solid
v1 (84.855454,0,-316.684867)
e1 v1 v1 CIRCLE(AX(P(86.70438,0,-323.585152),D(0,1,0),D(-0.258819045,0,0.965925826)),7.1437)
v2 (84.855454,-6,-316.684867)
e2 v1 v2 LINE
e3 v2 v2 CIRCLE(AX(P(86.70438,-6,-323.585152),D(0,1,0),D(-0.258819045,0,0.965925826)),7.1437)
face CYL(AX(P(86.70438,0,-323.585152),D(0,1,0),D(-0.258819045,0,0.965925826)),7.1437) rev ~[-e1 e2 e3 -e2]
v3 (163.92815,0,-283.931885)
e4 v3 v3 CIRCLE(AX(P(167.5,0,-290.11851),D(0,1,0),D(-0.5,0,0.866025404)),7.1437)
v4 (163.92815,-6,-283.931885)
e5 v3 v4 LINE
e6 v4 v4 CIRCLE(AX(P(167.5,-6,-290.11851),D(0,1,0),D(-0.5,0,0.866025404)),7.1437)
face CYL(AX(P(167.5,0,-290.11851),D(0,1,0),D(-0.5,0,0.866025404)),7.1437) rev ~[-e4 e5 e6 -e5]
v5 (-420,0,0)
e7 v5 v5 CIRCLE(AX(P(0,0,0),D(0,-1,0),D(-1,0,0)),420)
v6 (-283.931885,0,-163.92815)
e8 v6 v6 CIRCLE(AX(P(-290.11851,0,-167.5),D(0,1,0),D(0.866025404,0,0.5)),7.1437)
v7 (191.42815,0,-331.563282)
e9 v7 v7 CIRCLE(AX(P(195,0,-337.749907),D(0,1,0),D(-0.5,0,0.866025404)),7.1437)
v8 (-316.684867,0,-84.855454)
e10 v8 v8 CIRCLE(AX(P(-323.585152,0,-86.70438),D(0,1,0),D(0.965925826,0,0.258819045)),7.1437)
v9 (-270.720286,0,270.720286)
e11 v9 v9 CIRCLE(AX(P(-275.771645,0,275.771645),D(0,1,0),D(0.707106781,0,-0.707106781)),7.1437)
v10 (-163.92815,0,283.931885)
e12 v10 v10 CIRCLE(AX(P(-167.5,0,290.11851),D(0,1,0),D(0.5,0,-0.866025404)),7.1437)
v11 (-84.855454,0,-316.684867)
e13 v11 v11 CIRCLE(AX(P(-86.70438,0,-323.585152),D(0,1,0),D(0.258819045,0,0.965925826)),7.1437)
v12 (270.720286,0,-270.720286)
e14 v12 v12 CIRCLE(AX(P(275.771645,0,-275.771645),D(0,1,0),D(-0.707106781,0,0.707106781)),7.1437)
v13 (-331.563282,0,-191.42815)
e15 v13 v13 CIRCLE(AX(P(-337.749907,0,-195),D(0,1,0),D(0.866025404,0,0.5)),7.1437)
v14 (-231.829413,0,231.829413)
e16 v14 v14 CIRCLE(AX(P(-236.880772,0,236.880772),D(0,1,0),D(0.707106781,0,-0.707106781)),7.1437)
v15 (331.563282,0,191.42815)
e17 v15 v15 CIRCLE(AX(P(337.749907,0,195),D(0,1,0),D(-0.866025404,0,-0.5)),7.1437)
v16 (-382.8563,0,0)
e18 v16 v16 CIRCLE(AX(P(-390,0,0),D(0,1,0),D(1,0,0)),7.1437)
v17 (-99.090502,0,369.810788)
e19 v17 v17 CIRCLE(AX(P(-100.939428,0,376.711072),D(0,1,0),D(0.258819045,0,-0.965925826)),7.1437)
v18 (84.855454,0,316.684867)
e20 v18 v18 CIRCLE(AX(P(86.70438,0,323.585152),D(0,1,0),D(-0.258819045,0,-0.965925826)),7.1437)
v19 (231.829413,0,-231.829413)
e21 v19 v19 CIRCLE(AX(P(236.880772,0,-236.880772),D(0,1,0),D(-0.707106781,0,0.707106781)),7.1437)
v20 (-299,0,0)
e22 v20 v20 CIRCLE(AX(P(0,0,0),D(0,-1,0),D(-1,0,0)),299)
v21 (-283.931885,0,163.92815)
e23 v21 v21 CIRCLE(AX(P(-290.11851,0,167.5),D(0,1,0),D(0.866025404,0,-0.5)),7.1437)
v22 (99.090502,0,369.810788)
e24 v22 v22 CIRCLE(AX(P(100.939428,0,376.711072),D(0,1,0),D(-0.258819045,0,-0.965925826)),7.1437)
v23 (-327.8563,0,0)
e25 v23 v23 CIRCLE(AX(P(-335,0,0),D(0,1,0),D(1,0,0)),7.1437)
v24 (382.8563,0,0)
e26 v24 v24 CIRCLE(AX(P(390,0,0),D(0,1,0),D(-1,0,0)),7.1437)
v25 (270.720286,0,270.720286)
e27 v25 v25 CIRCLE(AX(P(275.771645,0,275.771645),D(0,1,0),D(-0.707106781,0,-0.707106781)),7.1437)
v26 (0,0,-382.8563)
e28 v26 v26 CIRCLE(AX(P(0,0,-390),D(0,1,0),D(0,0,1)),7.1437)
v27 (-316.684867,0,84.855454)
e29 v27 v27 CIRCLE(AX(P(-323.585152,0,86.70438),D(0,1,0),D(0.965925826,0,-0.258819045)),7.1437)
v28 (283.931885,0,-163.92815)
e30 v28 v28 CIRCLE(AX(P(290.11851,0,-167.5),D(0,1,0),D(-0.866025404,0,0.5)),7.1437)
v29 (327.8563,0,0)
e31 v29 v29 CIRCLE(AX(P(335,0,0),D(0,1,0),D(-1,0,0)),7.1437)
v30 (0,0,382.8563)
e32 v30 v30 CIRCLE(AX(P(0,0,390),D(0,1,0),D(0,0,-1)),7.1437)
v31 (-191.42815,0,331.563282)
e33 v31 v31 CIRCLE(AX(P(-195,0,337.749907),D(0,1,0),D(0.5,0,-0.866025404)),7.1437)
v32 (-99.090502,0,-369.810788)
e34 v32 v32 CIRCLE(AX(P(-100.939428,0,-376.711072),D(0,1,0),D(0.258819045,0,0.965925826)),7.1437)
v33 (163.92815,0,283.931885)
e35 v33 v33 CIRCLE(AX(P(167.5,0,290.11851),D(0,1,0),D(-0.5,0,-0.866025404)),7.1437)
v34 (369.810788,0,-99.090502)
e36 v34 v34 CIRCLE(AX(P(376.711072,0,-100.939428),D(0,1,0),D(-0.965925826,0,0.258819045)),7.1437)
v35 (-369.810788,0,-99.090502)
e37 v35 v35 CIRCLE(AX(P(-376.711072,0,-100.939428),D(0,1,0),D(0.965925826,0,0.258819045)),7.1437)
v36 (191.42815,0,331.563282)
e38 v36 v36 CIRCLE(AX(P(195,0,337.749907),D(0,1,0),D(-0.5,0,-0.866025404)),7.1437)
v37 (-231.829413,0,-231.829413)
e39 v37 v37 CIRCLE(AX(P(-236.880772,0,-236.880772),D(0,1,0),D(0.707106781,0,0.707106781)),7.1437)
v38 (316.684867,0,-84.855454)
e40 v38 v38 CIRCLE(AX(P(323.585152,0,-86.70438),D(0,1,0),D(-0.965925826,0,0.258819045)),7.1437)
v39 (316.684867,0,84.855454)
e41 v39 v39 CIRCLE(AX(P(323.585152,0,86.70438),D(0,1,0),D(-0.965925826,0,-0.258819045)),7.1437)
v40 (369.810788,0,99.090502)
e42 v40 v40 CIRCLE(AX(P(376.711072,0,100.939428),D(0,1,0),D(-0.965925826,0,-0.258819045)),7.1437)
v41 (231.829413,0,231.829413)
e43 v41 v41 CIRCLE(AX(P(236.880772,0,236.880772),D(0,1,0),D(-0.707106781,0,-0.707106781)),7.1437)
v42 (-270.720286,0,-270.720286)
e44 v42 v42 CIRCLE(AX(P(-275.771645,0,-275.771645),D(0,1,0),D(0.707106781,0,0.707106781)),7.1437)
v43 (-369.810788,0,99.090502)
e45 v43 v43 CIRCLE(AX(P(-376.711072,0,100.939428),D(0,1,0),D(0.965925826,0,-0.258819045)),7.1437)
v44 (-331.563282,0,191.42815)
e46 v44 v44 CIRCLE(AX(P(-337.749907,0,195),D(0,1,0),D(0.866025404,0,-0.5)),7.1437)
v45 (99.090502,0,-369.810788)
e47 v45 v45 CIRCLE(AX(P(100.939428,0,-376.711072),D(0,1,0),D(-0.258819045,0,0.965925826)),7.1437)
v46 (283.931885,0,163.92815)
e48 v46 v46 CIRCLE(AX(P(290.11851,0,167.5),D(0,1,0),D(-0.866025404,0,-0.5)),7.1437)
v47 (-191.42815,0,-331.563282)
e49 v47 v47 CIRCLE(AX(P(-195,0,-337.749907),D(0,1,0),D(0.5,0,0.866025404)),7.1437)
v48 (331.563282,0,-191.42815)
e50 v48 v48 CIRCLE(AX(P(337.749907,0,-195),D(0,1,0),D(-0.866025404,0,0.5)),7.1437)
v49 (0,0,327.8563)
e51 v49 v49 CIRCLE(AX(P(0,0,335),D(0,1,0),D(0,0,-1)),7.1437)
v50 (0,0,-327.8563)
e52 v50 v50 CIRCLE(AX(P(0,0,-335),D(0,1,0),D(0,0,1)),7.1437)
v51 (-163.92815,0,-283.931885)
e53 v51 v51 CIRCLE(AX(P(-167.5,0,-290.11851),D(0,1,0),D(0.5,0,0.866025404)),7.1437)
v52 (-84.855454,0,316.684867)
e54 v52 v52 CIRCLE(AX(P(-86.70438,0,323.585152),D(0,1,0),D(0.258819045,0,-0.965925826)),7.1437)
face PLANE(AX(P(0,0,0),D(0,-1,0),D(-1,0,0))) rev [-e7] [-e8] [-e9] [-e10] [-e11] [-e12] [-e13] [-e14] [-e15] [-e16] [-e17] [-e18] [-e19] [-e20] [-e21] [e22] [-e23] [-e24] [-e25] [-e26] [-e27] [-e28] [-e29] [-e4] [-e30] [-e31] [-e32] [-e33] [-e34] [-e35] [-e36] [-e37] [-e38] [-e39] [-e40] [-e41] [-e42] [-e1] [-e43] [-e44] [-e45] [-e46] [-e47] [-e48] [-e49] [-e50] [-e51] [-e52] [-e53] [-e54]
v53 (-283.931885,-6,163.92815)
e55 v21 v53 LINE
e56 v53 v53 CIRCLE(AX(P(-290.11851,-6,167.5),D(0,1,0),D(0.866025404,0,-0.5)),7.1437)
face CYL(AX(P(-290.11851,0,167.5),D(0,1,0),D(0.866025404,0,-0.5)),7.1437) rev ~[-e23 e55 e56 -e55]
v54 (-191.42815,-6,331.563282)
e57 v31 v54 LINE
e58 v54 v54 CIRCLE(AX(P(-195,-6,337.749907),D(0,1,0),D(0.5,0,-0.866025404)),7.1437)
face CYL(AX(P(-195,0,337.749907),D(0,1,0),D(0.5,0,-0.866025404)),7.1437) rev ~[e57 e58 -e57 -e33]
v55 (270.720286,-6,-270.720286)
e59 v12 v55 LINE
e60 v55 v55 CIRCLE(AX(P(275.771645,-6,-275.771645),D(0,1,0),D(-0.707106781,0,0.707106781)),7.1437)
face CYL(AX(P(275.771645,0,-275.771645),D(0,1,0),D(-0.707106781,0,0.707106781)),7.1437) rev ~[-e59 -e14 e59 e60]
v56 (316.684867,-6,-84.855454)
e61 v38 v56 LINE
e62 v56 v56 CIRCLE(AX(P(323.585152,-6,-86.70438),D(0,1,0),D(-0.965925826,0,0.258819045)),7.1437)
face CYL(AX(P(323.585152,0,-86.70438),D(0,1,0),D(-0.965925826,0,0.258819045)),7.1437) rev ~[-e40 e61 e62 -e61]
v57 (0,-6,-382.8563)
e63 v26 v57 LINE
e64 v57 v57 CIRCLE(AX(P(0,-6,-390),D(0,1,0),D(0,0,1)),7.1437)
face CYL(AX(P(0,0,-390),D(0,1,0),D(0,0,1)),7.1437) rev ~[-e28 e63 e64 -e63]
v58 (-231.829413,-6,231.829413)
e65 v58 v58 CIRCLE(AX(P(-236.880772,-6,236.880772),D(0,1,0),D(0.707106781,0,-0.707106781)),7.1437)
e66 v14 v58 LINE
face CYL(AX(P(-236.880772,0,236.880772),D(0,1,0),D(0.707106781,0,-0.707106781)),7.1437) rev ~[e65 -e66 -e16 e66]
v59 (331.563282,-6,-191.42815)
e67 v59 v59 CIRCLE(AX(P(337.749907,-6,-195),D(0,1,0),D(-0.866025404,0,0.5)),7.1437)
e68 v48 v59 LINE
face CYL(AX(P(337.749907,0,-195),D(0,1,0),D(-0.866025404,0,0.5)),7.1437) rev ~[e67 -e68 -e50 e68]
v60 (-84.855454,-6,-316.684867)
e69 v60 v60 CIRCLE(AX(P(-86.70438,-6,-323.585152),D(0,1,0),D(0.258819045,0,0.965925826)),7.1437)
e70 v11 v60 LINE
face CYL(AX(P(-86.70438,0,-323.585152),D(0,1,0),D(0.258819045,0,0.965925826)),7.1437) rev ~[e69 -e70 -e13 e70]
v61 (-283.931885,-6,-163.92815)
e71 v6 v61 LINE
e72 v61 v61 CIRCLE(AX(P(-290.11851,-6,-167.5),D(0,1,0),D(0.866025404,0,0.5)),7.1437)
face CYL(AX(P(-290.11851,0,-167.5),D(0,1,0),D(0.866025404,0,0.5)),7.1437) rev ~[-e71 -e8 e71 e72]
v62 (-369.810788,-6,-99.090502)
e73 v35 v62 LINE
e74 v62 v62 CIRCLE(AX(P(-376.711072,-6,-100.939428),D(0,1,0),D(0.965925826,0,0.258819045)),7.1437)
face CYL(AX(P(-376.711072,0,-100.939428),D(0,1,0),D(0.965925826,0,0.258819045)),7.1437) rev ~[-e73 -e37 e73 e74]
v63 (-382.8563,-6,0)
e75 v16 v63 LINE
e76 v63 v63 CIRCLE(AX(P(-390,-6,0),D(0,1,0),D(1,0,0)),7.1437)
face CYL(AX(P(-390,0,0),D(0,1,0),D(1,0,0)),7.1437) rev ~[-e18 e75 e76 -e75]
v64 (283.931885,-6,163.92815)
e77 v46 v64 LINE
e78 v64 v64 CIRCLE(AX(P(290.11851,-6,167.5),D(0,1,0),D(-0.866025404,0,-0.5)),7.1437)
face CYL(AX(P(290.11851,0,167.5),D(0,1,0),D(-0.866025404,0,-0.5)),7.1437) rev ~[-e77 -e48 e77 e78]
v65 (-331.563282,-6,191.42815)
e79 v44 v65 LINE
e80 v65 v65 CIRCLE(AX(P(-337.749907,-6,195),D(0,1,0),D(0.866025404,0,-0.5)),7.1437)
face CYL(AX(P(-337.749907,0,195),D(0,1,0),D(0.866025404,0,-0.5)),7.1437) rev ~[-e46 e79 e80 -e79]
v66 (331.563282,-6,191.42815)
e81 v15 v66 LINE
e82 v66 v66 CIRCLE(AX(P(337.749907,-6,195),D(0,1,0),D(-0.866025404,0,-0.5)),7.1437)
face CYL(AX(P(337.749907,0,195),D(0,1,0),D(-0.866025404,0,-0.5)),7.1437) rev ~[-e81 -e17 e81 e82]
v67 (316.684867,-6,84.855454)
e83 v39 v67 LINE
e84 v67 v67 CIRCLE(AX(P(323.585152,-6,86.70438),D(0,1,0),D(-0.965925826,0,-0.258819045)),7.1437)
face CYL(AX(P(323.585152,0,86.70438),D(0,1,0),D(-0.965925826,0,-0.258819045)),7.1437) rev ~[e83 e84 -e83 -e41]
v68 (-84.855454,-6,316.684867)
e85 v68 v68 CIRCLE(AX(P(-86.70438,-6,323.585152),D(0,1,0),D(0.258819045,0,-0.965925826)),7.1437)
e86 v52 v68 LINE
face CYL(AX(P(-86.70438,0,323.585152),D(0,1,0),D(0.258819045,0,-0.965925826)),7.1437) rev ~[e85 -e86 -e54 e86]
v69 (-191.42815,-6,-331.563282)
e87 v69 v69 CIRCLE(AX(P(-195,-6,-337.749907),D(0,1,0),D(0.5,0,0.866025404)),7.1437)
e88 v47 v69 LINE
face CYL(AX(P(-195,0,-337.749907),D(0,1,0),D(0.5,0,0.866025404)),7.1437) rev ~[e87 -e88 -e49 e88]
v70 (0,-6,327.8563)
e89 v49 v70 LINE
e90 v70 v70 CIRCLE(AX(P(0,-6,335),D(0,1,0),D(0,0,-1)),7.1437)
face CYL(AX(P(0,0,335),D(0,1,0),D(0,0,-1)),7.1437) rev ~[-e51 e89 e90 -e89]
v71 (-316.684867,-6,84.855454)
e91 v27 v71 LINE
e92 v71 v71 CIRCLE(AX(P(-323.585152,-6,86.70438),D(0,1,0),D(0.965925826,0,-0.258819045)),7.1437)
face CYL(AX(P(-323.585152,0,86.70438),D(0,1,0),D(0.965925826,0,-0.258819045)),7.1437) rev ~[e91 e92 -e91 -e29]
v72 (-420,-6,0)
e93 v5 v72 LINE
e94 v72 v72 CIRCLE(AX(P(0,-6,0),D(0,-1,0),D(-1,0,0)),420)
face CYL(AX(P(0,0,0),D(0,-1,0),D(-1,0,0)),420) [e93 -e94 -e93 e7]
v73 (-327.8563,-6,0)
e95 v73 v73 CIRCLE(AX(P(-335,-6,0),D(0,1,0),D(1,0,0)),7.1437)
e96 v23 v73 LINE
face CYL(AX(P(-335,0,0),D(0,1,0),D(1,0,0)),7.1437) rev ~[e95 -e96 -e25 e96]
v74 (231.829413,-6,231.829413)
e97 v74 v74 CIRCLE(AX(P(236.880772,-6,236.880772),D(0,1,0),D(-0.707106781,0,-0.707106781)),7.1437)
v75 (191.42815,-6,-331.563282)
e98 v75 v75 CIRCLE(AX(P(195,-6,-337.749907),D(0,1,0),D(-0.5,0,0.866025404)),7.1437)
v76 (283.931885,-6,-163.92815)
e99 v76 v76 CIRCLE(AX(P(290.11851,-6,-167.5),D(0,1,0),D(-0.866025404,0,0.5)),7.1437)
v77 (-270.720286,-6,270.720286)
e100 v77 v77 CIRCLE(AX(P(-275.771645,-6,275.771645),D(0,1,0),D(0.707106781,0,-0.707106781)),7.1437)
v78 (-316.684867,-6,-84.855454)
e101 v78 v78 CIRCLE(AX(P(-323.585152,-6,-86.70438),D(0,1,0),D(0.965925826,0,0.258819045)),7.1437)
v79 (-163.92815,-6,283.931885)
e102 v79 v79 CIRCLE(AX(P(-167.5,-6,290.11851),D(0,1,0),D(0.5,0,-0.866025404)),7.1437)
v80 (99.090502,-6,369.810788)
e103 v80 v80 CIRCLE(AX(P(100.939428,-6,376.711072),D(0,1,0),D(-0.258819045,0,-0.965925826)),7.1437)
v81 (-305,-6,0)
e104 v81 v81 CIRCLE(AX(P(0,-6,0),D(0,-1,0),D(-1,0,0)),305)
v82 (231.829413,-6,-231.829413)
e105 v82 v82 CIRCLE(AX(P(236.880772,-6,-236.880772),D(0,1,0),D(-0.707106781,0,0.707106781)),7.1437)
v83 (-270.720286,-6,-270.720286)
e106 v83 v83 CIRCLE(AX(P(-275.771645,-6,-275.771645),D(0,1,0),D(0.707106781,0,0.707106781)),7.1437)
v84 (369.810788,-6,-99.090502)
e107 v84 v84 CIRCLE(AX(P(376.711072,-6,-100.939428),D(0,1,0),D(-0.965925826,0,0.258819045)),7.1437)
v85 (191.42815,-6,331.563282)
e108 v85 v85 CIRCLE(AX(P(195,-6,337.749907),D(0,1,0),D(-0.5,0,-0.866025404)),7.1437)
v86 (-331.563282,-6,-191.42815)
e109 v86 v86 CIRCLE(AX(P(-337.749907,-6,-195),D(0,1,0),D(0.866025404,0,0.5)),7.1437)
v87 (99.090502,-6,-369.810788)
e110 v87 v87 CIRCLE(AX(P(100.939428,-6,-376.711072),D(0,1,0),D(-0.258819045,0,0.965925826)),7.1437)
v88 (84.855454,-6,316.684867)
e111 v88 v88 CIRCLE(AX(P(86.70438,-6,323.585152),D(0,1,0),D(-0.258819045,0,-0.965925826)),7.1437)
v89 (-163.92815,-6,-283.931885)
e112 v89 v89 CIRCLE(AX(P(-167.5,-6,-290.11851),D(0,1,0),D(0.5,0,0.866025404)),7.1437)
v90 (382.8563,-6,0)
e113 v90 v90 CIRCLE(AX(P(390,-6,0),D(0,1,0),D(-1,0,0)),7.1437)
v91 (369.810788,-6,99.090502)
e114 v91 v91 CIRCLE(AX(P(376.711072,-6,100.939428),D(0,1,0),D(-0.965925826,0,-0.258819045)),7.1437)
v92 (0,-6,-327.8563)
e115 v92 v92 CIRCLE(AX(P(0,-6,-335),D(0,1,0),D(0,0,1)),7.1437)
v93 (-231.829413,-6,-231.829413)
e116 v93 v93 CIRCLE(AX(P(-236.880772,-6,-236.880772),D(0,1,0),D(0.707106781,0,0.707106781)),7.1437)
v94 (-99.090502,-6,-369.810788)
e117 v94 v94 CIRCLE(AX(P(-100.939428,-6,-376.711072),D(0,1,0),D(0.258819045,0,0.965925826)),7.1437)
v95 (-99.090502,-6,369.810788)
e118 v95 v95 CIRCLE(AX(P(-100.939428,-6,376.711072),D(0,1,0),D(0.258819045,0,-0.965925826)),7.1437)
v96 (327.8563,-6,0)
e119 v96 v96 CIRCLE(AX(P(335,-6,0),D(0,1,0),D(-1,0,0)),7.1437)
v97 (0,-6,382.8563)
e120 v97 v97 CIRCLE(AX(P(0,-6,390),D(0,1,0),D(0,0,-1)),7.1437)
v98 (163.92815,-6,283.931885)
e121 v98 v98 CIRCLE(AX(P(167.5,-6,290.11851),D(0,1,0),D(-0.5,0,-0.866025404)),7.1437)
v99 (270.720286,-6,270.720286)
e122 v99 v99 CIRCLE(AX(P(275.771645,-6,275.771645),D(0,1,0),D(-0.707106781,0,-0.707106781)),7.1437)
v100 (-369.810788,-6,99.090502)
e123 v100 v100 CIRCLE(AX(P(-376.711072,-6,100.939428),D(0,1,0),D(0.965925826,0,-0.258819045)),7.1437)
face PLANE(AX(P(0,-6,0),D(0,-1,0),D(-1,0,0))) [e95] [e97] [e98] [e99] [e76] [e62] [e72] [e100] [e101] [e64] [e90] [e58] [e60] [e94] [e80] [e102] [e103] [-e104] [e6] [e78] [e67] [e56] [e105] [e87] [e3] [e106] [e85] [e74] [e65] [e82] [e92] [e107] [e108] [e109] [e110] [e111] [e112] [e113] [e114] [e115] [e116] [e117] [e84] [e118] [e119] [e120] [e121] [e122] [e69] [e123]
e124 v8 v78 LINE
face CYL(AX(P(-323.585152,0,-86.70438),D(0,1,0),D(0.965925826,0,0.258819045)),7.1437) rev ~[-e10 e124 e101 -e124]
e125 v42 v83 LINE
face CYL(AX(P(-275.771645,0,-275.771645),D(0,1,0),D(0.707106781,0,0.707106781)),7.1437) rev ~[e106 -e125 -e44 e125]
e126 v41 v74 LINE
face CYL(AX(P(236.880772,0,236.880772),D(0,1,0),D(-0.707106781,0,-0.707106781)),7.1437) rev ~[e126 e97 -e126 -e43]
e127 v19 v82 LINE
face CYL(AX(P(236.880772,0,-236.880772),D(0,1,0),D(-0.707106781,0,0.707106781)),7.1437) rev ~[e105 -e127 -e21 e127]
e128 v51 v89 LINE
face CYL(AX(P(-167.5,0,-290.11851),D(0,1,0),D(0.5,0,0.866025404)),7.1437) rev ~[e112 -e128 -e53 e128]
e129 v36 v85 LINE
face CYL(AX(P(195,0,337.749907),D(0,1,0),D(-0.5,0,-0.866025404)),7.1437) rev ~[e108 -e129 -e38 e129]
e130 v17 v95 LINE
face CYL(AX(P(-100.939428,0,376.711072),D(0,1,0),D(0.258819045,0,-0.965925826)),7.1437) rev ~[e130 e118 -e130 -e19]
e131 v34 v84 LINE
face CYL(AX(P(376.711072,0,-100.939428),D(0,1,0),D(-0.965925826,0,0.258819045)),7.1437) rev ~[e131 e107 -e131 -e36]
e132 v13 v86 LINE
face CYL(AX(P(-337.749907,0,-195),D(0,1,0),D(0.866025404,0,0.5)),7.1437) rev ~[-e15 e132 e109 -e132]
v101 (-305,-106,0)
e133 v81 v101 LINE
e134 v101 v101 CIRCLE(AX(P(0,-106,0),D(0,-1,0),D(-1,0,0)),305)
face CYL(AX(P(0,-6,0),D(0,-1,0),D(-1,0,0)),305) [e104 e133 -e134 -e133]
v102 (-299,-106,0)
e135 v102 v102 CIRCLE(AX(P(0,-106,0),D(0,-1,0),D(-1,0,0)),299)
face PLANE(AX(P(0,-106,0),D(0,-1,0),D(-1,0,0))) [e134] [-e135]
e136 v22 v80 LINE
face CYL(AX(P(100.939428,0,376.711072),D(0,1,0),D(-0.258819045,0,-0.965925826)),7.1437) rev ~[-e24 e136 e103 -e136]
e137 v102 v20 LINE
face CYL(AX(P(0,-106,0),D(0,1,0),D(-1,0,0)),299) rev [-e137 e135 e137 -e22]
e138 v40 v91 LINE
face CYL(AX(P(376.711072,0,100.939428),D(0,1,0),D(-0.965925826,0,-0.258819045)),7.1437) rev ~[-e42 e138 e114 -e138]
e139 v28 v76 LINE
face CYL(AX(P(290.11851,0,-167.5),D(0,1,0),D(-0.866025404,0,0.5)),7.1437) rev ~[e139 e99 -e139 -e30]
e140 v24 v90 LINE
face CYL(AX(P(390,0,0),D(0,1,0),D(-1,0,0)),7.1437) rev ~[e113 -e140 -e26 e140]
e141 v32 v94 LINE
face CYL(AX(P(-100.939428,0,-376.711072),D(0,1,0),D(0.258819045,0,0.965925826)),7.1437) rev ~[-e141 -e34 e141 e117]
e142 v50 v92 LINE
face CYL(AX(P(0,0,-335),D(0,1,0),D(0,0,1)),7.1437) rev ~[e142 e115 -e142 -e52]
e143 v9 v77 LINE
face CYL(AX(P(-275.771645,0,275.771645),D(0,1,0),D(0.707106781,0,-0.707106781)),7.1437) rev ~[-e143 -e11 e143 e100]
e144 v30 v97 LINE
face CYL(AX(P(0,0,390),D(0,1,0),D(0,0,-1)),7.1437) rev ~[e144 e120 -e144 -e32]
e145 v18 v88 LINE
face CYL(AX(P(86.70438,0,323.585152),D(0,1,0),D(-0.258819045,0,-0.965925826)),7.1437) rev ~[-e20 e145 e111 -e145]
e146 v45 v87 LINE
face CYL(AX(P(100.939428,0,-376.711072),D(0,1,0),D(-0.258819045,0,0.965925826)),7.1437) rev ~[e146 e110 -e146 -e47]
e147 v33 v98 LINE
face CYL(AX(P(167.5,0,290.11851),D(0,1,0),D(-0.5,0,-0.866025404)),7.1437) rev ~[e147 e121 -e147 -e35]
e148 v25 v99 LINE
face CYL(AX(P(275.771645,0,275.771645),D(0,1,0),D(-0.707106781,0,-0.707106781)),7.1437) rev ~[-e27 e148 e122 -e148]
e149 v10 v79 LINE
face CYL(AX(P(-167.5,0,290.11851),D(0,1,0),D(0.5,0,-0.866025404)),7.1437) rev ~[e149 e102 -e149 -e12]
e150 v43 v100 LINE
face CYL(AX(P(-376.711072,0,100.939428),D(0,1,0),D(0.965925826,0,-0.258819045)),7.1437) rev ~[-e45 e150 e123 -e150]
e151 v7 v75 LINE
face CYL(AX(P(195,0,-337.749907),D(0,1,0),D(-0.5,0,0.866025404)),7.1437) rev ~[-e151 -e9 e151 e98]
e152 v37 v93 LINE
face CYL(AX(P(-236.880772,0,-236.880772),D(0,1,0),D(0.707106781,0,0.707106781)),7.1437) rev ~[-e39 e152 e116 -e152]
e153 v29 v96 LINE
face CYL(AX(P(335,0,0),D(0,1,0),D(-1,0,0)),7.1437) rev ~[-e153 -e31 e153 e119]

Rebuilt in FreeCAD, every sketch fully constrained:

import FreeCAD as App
import Part
import Sketcher
from FreeCAD import Vector

doc = App.newDocument("Part")
body = doc.addObject("PartDesign::Body", "Body")

# Sketch on XY plane
sketch1 = body.newObject("Sketcher::SketchObject", "Sketch")
sketch1.AttachmentSupport = (doc.getObject("XY_Plane"), [""])
sketch1.MapMode = "FlatFace"
sketch1.addGeometry(Part.LineSegment(Vector(-305, -106, 0), Vector(-299, -106, 0)), False)
sketch1.addGeometry(Part.LineSegment(Vector(-299, -106, 0), Vector(-299, 0, 0)), False)
sketch1.addGeometry(Part.LineSegment(Vector(-299, 0, 0), Vector(-420, 0, 0)), False)
sketch1.addGeometry(Part.LineSegment(Vector(-420, 0, 0), Vector(-420, -6, 0)), False)
sketch1.addGeometry(Part.LineSegment(Vector(-420, -6, 0), Vector(-305, -6, 0)), False)
sketch1.addGeometry(Part.LineSegment(Vector(-305, -6, 0), Vector(-305, -106, 0)), False)
sketch1.addConstraint(Sketcher.Constraint("Coincident", 0, 2, 1, 1))
sketch1.addConstraint(Sketcher.Constraint("Coincident", 1, 2, 2, 1))
sketch1.addConstraint(Sketcher.Constraint("Coincident", 2, 2, 3, 1))
sketch1.addConstraint(Sketcher.Constraint("Coincident", 3, 2, 4, 1))
sketch1.addConstraint(Sketcher.Constraint("Coincident", 4, 2, 5, 1))
sketch1.addConstraint(Sketcher.Constraint("Coincident", 5, 2, 0, 1))
sketch1.addConstraint(Sketcher.Constraint("Horizontal", 0))
sketch1.addConstraint(Sketcher.Constraint("Vertical", 1))
sketch1.addConstraint(Sketcher.Constraint("Horizontal", 2))
sketch1.addConstraint(Sketcher.Constraint("Vertical", 3))
sketch1.addConstraint(Sketcher.Constraint("Horizontal", 4))
sketch1.addConstraint(Sketcher.Constraint("Vertical", 5))
sketch1.addConstraint(Sketcher.Constraint("PointOnObject", 1, 2, -1))
sketch1.addConstraint(Sketcher.Constraint("Equal", 0, 3))
sketch1.addConstraint(Sketcher.Constraint("DistanceX", 0, 1, 0, 2, 6.0))
sketch1.addConstraint(Sketcher.Constraint("DistanceY", 5, 2, 5, 1, 100.0))
sketch1.addConstraint(Sketcher.Constraint("DistanceX", 2, 2, 2, 1, 121.0))
sketch1.addConstraint(Sketcher.Constraint("DistanceX", 0, 2, -1, 1, 299.0))
revolution = body.newObject("PartDesign::Revolution", "Revolution")
revolution.Profile = sketch1
revolution.ReferenceAxis = (sketch1, ["V_Axis"])
revolution.Angle = 360

# Sketch on XZ plane
sketch2 = body.newObject("Sketcher::SketchObject", "Sketch001")
sketch2.AttachmentSupport = (doc.getObject("XZ_Plane"), [""])
sketch2.MapMode = "FlatFace"
sketch2.addGeometry(Part.Circle(Vector(-335, 0, 0), Vector(0, 0, 1), 7.1437), False)
sketch2.addGeometry(Part.Circle(Vector(-390, 0, 0), Vector(0, 0, 1), 7.1437), False)
sketch2.addConstraint(Sketcher.Constraint("Equal", 0, 1))
sketch2.addConstraint(Sketcher.Constraint("PointOnObject", 0, 3, -1))
sketch2.addConstraint(Sketcher.Constraint("PointOnObject", 1, 3, -1))
sketch2.addConstraint(Sketcher.Constraint("Diameter", 0, 14.2874))
sketch2.addConstraint(Sketcher.Constraint("DistanceX", 0, 3, -1, 1, 335.0))
sketch2.addConstraint(Sketcher.Constraint("DistanceX", 1, 3, -1, 1, 390.0))
pocket1 = body.newObject("PartDesign::Pocket", "Pocket")
pocket1.Profile = sketch2
pocket1.Type = "ThroughAll"
pocket1.Reversed = True
doc.recompute()

polarpattern = body.newObject("PartDesign::PolarPattern", "PolarPattern")
polarpattern.Originals = [pocket1]
polarpattern.Axis = (doc.getObject("Y_Axis"), [""])
polarpattern.Angle = 360
polarpattern.Occurrences = 24
body.Tip = polarpattern

doc.recompute()
